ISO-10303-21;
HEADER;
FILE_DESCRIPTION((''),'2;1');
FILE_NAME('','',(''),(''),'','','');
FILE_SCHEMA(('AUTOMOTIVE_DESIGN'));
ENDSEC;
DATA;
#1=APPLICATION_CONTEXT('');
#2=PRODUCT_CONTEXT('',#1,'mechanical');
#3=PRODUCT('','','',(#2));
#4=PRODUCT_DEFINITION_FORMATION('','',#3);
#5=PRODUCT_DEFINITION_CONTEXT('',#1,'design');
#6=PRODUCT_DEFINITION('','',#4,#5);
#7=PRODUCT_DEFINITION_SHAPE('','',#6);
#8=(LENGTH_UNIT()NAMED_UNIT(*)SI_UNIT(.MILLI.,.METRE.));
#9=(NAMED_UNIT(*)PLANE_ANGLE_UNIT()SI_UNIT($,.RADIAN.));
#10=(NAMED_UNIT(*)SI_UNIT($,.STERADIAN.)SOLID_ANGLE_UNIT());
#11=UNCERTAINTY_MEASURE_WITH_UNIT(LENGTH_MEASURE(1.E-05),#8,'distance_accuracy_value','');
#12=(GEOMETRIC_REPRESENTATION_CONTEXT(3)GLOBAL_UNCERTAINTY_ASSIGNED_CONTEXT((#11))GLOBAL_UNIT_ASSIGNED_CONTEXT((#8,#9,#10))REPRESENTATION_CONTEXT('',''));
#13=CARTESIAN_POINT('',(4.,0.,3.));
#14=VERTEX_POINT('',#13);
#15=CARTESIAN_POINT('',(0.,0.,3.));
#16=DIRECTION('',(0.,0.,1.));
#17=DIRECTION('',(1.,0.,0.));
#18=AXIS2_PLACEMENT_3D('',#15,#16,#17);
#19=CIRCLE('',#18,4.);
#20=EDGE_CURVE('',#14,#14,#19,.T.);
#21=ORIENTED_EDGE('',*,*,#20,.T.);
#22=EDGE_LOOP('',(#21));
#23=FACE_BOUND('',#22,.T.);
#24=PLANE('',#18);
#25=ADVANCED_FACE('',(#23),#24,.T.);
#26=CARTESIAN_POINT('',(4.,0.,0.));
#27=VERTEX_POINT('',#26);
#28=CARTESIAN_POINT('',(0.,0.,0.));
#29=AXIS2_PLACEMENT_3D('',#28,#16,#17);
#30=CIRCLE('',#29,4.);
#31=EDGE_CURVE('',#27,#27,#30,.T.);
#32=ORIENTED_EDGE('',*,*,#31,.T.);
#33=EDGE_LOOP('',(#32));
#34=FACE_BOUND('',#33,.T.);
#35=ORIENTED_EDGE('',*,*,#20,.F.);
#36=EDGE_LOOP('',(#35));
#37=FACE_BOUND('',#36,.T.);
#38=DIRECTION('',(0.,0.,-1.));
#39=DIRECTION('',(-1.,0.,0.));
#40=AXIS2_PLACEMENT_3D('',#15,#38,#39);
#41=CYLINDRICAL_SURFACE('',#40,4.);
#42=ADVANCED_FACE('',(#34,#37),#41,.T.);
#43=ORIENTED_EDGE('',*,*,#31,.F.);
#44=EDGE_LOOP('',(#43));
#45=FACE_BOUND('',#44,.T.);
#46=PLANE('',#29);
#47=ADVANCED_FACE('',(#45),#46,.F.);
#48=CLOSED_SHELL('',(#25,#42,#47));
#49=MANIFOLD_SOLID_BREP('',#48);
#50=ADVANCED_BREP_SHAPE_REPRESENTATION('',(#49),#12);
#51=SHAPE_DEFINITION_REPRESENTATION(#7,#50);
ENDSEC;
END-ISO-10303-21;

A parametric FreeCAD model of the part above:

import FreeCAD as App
import Part
import Sketcher

doc = App.newDocument("Part")
params = doc.addObject("Spreadsheet::Sheet", "Params")
for row, (alias, value) in enumerate([
    ("sketch1_diameter", "8 mm"),
    ("pad1_length", "3 mm"),
], start=1):
    params.set(f"A{row}", alias)
    params.set(f"B{row}", "=" + value)
    params.setAlias(f"B{row}", alias)

body = doc.addObject("PartDesign::Body", "Body")

sketch1 = body.newObject("Sketcher::SketchObject", "Sketch")
sketch1.AttachmentSupport = (doc.getObject("XY_Plane"), [""])
sketch1.MapMode = "FlatFace"
sketch1.addGeometry(Part.Circle(App.Vector(0, 0, 0), App.Vector(0, 0, 1), 4), False)
sketch1.addConstraint([
    Sketcher.Constraint("Coincident", 0, 3, -1, 1),
    Sketcher.Constraint("Diameter", 0, 8.0),
])
sketch1.setExpression("Constraints[1]", "Params.sketch1_diameter")
pad1 = body.newObject("PartDesign::Pad", "Pad")
pad1.Profile = sketch1
pad1.setExpression("Length", "Params.pad1_length")

doc.recompute()
